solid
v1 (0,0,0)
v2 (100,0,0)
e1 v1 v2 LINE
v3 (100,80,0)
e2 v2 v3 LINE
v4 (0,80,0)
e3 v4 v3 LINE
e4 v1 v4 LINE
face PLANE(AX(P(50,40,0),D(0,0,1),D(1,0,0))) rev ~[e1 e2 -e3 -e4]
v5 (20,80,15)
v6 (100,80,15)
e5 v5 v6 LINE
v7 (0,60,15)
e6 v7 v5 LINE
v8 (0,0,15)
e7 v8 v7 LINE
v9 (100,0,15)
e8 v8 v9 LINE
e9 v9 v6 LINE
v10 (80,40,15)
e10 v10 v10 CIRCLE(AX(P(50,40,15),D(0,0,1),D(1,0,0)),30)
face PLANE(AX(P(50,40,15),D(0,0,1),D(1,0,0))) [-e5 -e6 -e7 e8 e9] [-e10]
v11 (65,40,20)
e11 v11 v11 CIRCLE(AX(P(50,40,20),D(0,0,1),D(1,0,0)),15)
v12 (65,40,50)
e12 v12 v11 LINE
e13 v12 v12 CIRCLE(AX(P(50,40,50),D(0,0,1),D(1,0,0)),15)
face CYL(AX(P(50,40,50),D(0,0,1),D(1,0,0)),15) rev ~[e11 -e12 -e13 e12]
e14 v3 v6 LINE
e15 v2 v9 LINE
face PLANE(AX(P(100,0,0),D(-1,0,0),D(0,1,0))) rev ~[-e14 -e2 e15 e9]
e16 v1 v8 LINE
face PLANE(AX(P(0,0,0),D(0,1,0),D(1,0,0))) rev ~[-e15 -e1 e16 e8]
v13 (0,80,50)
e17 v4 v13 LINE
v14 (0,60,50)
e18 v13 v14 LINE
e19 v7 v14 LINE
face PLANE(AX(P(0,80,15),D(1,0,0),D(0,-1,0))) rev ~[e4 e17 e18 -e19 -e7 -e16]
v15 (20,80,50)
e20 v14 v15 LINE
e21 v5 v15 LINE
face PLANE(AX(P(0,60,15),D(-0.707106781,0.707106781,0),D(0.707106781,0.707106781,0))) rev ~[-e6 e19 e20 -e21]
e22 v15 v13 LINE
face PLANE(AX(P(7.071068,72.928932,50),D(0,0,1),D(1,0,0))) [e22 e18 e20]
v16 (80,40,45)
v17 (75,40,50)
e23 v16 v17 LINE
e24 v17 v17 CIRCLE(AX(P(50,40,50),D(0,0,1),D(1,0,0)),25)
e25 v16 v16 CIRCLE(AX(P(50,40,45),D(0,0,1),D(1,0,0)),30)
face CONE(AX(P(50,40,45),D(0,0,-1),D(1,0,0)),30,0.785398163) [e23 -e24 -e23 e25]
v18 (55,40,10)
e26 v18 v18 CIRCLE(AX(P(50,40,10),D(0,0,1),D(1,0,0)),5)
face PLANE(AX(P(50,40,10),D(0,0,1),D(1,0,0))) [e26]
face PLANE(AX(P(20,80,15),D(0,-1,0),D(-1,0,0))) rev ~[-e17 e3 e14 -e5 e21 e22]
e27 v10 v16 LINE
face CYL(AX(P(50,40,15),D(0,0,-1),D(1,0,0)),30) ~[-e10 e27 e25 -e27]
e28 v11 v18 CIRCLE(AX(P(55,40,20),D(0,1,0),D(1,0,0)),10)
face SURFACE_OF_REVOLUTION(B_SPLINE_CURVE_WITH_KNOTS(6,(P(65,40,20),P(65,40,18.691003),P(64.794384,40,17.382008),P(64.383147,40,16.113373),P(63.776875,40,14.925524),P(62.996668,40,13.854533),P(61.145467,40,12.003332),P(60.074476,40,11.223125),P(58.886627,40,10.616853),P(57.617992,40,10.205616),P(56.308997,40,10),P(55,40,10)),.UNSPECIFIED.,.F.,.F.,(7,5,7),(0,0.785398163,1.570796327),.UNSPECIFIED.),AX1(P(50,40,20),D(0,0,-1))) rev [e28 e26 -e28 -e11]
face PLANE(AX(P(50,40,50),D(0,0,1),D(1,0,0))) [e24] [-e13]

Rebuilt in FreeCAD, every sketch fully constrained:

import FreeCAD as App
import Part
import Sketcher

V = App.Vector


def edges_at(feature, points):
    """Names of the edges that pass closest to the given points."""
    edges = feature.Shape.Edges
    near = lambda p: min(range(len(edges)), key=lambda i: edges[i].distToShape(Part.Vertex(*p))[0])
    return sorted({f"Edge{near(p) + 1}" for p in points})


def add_polygon(sketch, points):
    """Adds a closed chain of lines whose ends are joined by coincident constraints."""
    first, n = sketch.GeometryCount, len(points)
    for a, b in zip(points, points[1:] + points[:1]):
        sketch.addGeometry(Part.LineSegment(App.Vector(*a, 0), App.Vector(*b, 0)), False)
    for i in range(n):
        sketch.addConstraint(Sketcher.Constraint("Coincident", first + i, 2, first + (i + 1) % n, 1))

doc = App.newDocument("Part")
body = doc.addObject("PartDesign::Body", "Body")

# Sketch on XY plane
sketch1 = doc.addObject("Sketcher::SketchObject", "Sketch")
body.addObject(sketch1)
sketch1.AttachmentSupport = (doc.XY_Plane, [""])
sketch1.MapMode = "FlatFace"
add_polygon(sketch1, [(0, 80), (0, 0), (100, 0), (100, 80)])  # lines 0-3
sketch1.addConstraint([
    Sketcher.Constraint("Vertical", 0),
    Sketcher.Constraint("Horizontal", 1),
    Sketcher.Constraint("Vertical", 2),
    Sketcher.Constraint("Horizontal", 3),
    Sketcher.Constraint("Coincident", 0, 2, -1, 1),
    Sketcher.Constraint("DistanceX", 1, 1, 1, 2, 100.0),
    Sketcher.Constraint("DistanceY", 0, 2, 0, 1, 80.0),
])
pad1 = doc.addObject("PartDesign::Pad", "Pad")
body.addObject(pad1)
pad1.Profile = sketch1
pad1.Length = 15

# Sketch on XY plane
sketch2 = doc.addObject("Sketcher::SketchObject", "Sketch001")
body.addObject(sketch2)
sketch2.AttachmentSupport = (doc.XY_Plane, [""])
sketch2.MapMode = "FlatFace"
sketch2.AttachmentOffset = App.Placement(V(0, 0, 15), App.Rotation())
add_polygon(sketch2, [(20, 80), (0, 80), (0, 60)])  # lines 0-2
sketch2.addConstraint([
    Sketcher.Constraint("Horizontal", 0),
    Sketcher.Constraint("Vertical", 1),
    Sketcher.Constraint("PointOnObject", 0, 2, -2),
    Sketcher.Constraint("Equal", 0, 1),
    Sketcher.Constraint("DistanceX", 0, 2, 0, 1, 20.0),
    Sketcher.Constraint("DistanceY", -1, 1, 0, 2, 80.0),
])
pad2 = doc.addObject("PartDesign::Pad", "Pad001")
body.addObject(pad2)
pad2.Profile = sketch2
pad2.Length = 35

# Sketch on XY plane
sketch3 = doc.addObject("Sketcher::SketchObject", "Sketch002")
body.addObject(sketch3)
sketch3.AttachmentSupport = (doc.XY_Plane, [""])
sketch3.MapMode = "FlatFace"
sketch3.AttachmentOffset = App.Placement(V(0, 0, 15), App.Rotation())
sketch3.addGeometry(Part.Circle(V(50, 40, 0), V(0, 0, 1), 30), False)
sketch3.addConstraint([
    Sketcher.Constraint("Diameter", 0, 60.0),
    Sketcher.Constraint("DistanceX", -1, 1, 0, 3, 50.0),
    Sketcher.Constraint("DistanceY", -1, 1, 0, 3, 40.0),
])
pad3 = doc.addObject("PartDesign::Pad", "Pad002")
body.addObject(pad3)
pad3.Profile = sketch3
pad3.Length = 35
doc.recompute()

chamfer = doc.addObject("PartDesign::Chamfer", "Chamfer")
body.addObject(chamfer)
chamfer.Base = (pad3, edges_at(pad3, [(20, 40, 50)]))
chamfer.Size = 5

# Sketch on XY plane
sketch4 = doc.addObject("Sketcher::SketchObject", "Sketch003")
body.addObject(sketch4)
sketch4.AttachmentSupport = (doc.XY_Plane, [""])
sketch4.MapMode = "FlatFace"
sketch4.AttachmentOffset = App.Placement(V(0, 0, 50), App.Rotation())
sketch4.addGeometry(Part.Circle(V(50, 40, 0), V(0, 0, 1), 15), False)
sketch4.addConstraint([
    Sketcher.Constraint("Diameter", 0, 30.0),
    Sketcher.Constraint("DistanceX", -1, 1, 0, 3, 50.0),
    Sketcher.Constraint("DistanceY", -1, 1, 0, 3, 40.0),
])
pocket1 = doc.addObject("PartDesign::Pocket", "Pocket")
body.addObject(pocket1)
pocket1.Profile = sketch4
pocket1.Length = 40
doc.recompute()

fillet = doc.addObject("PartDesign::Fillet", "Fillet")
body.addObject(fillet)
fillet.Base = (pocket1, edges_at(pocket1, [(35, 40, 10)]))
fillet.Radius = 10

doc.recompute()
